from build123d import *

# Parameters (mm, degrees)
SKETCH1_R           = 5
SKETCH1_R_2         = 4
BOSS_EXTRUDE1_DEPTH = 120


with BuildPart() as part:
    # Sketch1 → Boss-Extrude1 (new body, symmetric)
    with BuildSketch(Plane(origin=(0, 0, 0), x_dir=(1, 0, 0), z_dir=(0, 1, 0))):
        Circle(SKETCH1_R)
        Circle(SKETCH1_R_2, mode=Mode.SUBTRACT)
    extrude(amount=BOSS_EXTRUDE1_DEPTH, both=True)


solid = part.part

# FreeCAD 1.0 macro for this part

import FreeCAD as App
import Part
import Sketcher

V = App.Vector
Q = App.Units.Quantity

doc = App.newDocument("Part")
body = doc.addObject("PartDesign::Body", "Body")

# Sketch on XZ plane
sketch1 = body.newObject("Sketcher::SketchObject", "Sketch")
sketch1.AttachmentSupport = (doc.getObject("XZ_Plane"), [""])
sketch1.MapMode = "FlatFace"
sketch1.addGeometry([
    Part.Circle(V(0, 0, 0), V(0, 0, 1), 5),
    Part.Circle(V(0, 0, 0), V(0, 0, 1), 4),
], False)
sketch1.addConstraint([
    Sketcher.Constraint("Coincident", 0, 3, -1, 1),
    Sketcher.Constraint("Coincident", 1, 3, -1, 1),
    Sketcher.Constraint("Diameter", 0, Q("10 mm")),
    Sketcher.Constraint("Diameter", 1, Q("8 mm")),
])
pad1 = body.newObject("PartDesign::Pad", "Pad")
pad1.Profile = sketch1
pad1.Length = 240
pad1.Midplane = True

doc.recompute()
